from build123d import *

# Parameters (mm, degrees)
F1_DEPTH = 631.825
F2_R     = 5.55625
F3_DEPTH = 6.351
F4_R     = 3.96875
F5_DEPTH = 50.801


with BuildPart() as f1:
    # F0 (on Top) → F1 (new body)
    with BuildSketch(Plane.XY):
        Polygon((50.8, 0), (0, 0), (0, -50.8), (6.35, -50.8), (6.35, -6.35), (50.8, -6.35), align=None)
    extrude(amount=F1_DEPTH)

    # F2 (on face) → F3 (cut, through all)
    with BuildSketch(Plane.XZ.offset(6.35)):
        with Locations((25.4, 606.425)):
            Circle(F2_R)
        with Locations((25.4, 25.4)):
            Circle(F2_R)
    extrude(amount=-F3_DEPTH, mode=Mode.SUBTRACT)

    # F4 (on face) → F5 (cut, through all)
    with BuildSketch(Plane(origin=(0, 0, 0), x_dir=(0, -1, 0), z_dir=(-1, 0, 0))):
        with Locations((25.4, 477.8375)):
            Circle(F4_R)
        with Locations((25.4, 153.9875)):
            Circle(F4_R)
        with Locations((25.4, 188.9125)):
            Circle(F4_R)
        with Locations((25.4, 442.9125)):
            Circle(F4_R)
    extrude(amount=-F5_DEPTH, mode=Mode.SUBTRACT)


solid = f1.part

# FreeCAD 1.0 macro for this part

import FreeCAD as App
import Part
import Sketcher

V = App.Vector
Q = App.Units.Quantity


def add_polygon(sketch, points):
    """Adds a closed chain of lines whose ends are joined by coincident constraints."""
    first, n = sketch.GeometryCount, len(points)
    for a, b in zip(points, points[1:] + points[:1]):
        sketch.addGeometry(Part.LineSegment(App.Vector(*a, 0), App.Vector(*b, 0)), False)
    for i in range(n):
        sketch.addConstraint(Sketcher.Constraint("Coincident", first + i, 2, first + (i + 1) % n, 1))

doc = App.newDocument("Part")
body = doc.addObject("PartDesign::Body", "Body")

# Sketch on XY plane
sketch1 = body.newObject("Sketcher::SketchObject", "Sketch")
sketch1.AttachmentSupport = (doc.getObject("XY_Plane"), [""])
sketch1.MapMode = "FlatFace"
add_polygon(sketch1, [(51, 0), (0, 0), (0, -51), (6, -51), (6, -6), (51, -6)])  # lines 0-5
sketch1.addConstraint([
    Sketcher.Constraint("Horizontal", 0),
    Sketcher.Constraint("Vertical", 1),
    Sketcher.Constraint("Horizontal", 2),
    Sketcher.Constraint("Vertical", 3),
    Sketcher.Constraint("Horizontal", 4),
    Sketcher.Constraint("Vertical", 5),
    Sketcher.Constraint("Coincident", 0, 2, -1, 1),
    Sketcher.Constraint("Equal", 0, 1),
    Sketcher.Constraint("Equal", 4, 3),
    Sketcher.Constraint("DistanceX", 0, 2, 0, 1, Q("2 in")),
    Sketcher.Constraint("DistanceX", 2, 1, 2, 2, Q("0.25 in")),
])
pad1 = body.newObject("PartDesign::Pad", "Pad")
pad1.Profile = sketch1
pad1.Length = Q("24.875 in")

# Sketch on XZ plane
sketch2 = body.newObject("Sketcher::SketchObject", "Sketch001")
sketch2.AttachmentSupport = (doc.getObject("XZ_Plane"), [""])
sketch2.MapMode = "FlatFace"
sketch2.AttachmentOffset = App.Placement(V(0, 0, 0.25 * 25.4), App.Rotation())
sketch2.addGeometry([
    Part.Circle(V(25, 606, 0), V(0, 0, 1), 6),
    Part.Circle(V(25, 25, 0), V(0, 0, 1), 6),
], False)
sketch2.addConstraint([
    Sketcher.Constraint("Equal", 0, 1),
    Sketcher.Constraint("Vertical", 0, 3, 1, 3),
    Sketcher.Constraint("Diameter", 0, Q("0.4375 in")),
    Sketcher.Constraint("DistanceX", -1, 1, 0, 3, Q("1 in")),
    Sketcher.Constraint("DistanceY", -1, 1, 1, 3, Q("1 in")),
    Sketcher.Constraint("DistanceY", -1, 1, 0, 3, Q("23.875 in")),
])
pocket1 = body.newObject("PartDesign::Pocket", "Pocket")
pocket1.Profile = sketch2
pocket1.Type = "ThroughAll"

# Sketch on YZ plane
sketch3 = body.newObject("Sketcher::SketchObject", "Sketch002")
sketch3.AttachmentSupport = (doc.getObject("YZ_Plane"), [""])
sketch3.MapMode = "FlatFace"
sketch3.addGeometry([
    Part.Circle(V(-25.4, 477.8, 0), V(0, 0, 1), 4),
    Part.Circle(V(-25.4, 154, 0), V(0, 0, 1), 4),
    Part.Circle(V(-25.4, 188.9, 0), V(0, 0, 1), 4),
    Part.Circle(V(-25.4, 442.9, 0), V(0, 0, 1), 4),
], False)
sketch3.addConstraint([
    Sketcher.Constraint("Equal", 0, 1),
    Sketcher.Constraint("Equal", 1, 2),
    Sketcher.Constraint("Equal", 2, 3),
    Sketcher.Constraint("Vertical", 0, 3, 1, 3),
    Sketcher.Constraint("Vertical", 1, 3, 2, 3),
    Sketcher.Constraint("Vertical", 2, 3, 3, 3),
    Sketcher.Constraint("Diameter", 0, Q("0.3125 in")),
    Sketcher.Constraint("DistanceX", 0, 3, -1, 1, Q("1 in")),
    Sketcher.Constraint("DistanceY", 2, 3, 3, 3, Q("10 in")),
    Sketcher.Constraint("DistanceY", 1, 3, 0, 3, Q("12.75 in")),
    Sketcher.Constraint("DistanceY", -1, 1, 0, 3, Q("18.8125 in")),
    Sketcher.Constraint("DistanceY", -1, 1, 2, 3, Q("7.4375 in")),
])
pocket2 = body.newObject("PartDesign::Pocket", "Pocket001")
pocket2.Profile = sketch3
pocket2.Type = "ThroughAll"
pocket2.Reversed = True

doc.recompute()
